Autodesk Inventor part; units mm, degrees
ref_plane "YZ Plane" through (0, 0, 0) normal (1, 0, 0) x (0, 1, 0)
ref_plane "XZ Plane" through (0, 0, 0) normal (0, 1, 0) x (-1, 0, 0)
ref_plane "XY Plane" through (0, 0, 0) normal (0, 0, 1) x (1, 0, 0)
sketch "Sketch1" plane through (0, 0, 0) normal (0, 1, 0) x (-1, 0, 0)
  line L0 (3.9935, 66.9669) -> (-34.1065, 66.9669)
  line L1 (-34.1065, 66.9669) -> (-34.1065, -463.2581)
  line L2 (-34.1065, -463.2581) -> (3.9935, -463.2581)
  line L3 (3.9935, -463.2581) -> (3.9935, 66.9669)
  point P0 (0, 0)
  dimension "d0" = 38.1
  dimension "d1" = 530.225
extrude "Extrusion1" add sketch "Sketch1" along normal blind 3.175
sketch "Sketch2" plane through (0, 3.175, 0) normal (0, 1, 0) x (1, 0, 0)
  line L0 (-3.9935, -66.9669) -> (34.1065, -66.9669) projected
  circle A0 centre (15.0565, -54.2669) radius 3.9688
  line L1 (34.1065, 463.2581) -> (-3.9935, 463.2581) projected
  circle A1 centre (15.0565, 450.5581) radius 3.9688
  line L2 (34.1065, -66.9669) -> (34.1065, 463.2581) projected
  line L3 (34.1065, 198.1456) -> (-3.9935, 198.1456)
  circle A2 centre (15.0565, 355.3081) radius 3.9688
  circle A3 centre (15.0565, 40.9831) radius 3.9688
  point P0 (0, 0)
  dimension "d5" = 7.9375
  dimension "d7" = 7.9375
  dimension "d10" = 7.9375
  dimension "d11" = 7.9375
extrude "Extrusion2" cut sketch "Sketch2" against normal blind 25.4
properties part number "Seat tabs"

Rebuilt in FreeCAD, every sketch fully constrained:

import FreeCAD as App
import Part
import Sketcher
Q = App.Units.Quantity


def add_polygon(sketch, points):
    """Adds a closed chain of lines whose ends are joined by coincident constraints."""
    first, n = sketch.GeometryCount, len(points)
    for a, b in zip(points, points[1:] + points[:1]):
        sketch.addGeometry(Part.LineSegment(App.Vector(*a, 0), App.Vector(*b, 0)), False)
    for i in range(n):
        sketch.addConstraint(Sketcher.Constraint("Coincident", first + i, 2, first + (i + 1) % n, 1))

doc = App.newDocument("Part")
body = doc.addObject("PartDesign::Body", "Body")

# Sketch on XZ plane
sketch1 = doc.addObject("Sketcher::SketchObject", "Sketch")
body.addObject(sketch1)
sketch1.AttachmentSupport = (doc.XZ_Plane, [""])
sketch1.MapMode = "FlatFace"
add_polygon(sketch1, [(-4, -463), (-4, 67), (34, 67), (34, -463)])  # lines 0-3
sketch1.addConstraint([
    Sketcher.Constraint("Vertical", 0),
    Sketcher.Constraint("Horizontal", 1),
    Sketcher.Constraint("Vertical", 2),
    Sketcher.Constraint("Horizontal", 3),
    Sketcher.Constraint("DistanceX", 1, 1, 1, 2, Q("1.5 in")),
    Sketcher.Constraint("DistanceY", 0, 1, 0, 2, Q("20.875 in")),
    Sketcher.Constraint("DistanceY", -1, 1, 0, 2, Q("2.6365 in")),
    Sketcher.Constraint("DistanceX", 0, 2, -1, 1, 3.9935),
])
pad1 = doc.addObject("PartDesign::Pad", "Pad")
body.addObject(pad1)
pad1.Profile = sketch1
pad1.Length = Q("0.125 in")
pad1.Reversed = True

# Sketch on XZ plane
sketch2 = doc.addObject("Sketcher::SketchObject", "Sketch001")
body.addObject(sketch2)
sketch2.AttachmentSupport = (doc.XZ_Plane, [""])
sketch2.MapMode = "FlatFace"
sketch2.AttachmentOffset = App.Placement(App.Vector(0, 0, -0.125 * 25.4), App.Rotation())
sketch2.addGeometry([
    Part.Circle(App.Vector(15.1, 54.3, 0), App.Vector(0, 0, 1), 4),
    Part.Circle(App.Vector(15.1, -450.6, 0), App.Vector(0, 0, 1), 4),
    Part.Circle(App.Vector(15.1, -355.3, 0), App.Vector(0, 0, 1), 4),
    Part.Circle(App.Vector(15.1, -41, 0), App.Vector(0, 0, 1), 4),
], False)
sketch2.addConstraint([
    Sketcher.Constraint("Equal", 0, 1),
    Sketcher.Constraint("Equal", 1, 2),
    Sketcher.Constraint("Equal", 2, 3),
    Sketcher.Constraint("Vertical", 0, 3, 1, 3),
    Sketcher.Constraint("Vertical", 1, 3, 2, 3),
    Sketcher.Constraint("Vertical", 2, 3, 3, 3),
    Sketcher.Constraint("Diameter", 0, Q("0.3125 in")),
    Sketcher.Constraint("DistanceY", 1, 3, 2, 3, Q("3.75 in")),
    Sketcher.Constraint("DistanceY", 3, 3, 0, 3, Q("3.75 in")),
    Sketcher.Constraint("DistanceY", 1, 3, 0, 3, Q("19.875 in")),
    Sketcher.Constraint("DistanceY", -1, 1, 0, 3, Q("2.1365 in")),
    Sketcher.Constraint("DistanceX", -1, 1, 0, 3, 15.0565),
])
pocket1 = doc.addObject("PartDesign::Pocket", "Pocket")
body.addObject(pocket1)
pocket1.Profile = sketch2
pocket1.Length = Q("1 in")
pocket1.Reversed = True

doc.recompute()
